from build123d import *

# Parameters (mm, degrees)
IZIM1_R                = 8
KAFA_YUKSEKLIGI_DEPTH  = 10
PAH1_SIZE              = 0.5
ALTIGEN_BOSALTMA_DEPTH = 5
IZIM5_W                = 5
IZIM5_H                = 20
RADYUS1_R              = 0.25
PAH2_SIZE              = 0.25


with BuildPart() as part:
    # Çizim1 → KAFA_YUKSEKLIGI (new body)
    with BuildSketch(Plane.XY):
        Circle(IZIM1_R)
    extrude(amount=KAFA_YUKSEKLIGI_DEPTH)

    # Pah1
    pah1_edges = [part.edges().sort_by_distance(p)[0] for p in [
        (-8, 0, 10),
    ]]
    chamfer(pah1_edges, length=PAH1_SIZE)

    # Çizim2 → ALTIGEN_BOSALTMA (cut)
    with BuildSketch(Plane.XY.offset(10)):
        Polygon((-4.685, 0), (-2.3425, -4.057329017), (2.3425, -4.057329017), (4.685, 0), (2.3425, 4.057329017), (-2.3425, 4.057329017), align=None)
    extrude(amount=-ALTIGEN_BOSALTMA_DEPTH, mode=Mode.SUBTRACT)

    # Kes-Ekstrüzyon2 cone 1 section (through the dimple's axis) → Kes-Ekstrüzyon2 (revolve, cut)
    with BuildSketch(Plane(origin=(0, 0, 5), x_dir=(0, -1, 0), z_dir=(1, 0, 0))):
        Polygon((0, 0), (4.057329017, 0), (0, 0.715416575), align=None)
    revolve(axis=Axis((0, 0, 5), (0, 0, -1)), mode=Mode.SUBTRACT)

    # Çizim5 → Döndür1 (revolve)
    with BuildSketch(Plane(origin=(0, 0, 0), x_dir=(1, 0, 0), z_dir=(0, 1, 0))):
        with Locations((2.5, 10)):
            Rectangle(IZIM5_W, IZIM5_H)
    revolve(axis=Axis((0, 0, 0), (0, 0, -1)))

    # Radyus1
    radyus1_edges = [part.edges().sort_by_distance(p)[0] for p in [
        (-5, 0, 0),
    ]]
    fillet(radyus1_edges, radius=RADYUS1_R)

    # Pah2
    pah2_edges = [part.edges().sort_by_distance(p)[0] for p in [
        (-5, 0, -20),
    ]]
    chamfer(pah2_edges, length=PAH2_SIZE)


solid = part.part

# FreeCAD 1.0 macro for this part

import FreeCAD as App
import Part
import Sketcher

V = App.Vector
Q = App.Units.Quantity


def edges_at(feature, points):
    """Names of the edges that pass closest to the given points."""
    edges = feature.Shape.Edges
    near = lambda p: min(range(len(edges)), key=lambda i: edges[i].distToShape(Part.Vertex(*p))[0])
    return sorted({f"Edge{near(p) + 1}" for p in points})


def add_polygon(sketch, points):
    """Adds a closed chain of lines whose ends are joined by coincident constraints."""
    first, n = sketch.GeometryCount, len(points)
    for a, b in zip(points, points[1:] + points[:1]):
        sketch.addGeometry(Part.LineSegment(App.Vector(*a, 0), App.Vector(*b, 0)), False)
    for i in range(n):
        sketch.addConstraint(Sketcher.Constraint("Coincident", first + i, 2, first + (i + 1) % n, 1))

doc = App.newDocument("Part")
body = doc.addObject("PartDesign::Body", "Body")

# Sketch on XY plane
sketch1 = doc.addObject("Sketcher::SketchObject", "Sketch")
body.addObject(sketch1)
sketch1.AttachmentSupport = (doc.XY_Plane, [""])
sketch1.MapMode = "FlatFace"
sketch1.addGeometry(Part.Circle(V(0, 0, 0), V(0, 0, 1), 8), False)
sketch1.addConstraint([
    Sketcher.Constraint("Coincident", 0, 3, -1, 1),
    Sketcher.Constraint("Diameter", 0, Q("16 mm")),
])
pad1 = doc.addObject("PartDesign::Pad", "Pad")
body.addObject(pad1)
pad1.Profile = sketch1
pad1.Length = 10
doc.recompute()

chamfer = doc.addObject("PartDesign::Chamfer", "Chamfer")
body.addObject(chamfer)
chamfer.Base = (pad1, edges_at(pad1, [(-8, 0, 10)]))
chamfer.Size = 0.5

# Sketch on XY plane
sketch2 = doc.addObject("Sketcher::SketchObject", "Sketch001")
body.addObject(sketch2)
sketch2.AttachmentSupport = (doc.XY_Plane, [""])
sketch2.MapMode = "FlatFace"
sketch2.AttachmentOffset = App.Placement(V(0, 0, 10), App.Rotation())
add_polygon(sketch2, [(-4.7, 0), (-2.3, -4.1), (2.3, -4.1), (4.7, 0), (2.3, 4.1), (-2.3, 4.1)])  # lines 0-5
sketch2.addConstraint([
    Sketcher.Constraint("Horizontal", 1),
    Sketcher.Constraint("Horizontal", 4),
    Sketcher.Constraint("Symmetric", 0, 2, 3, 2, -1, 1),
    Sketcher.Constraint("Symmetric", 2, 2, 5, 2, -1, 1),
    Sketcher.Constraint("PointOnObject", 2, 2, -1),
    Sketcher.Constraint("Parallel", 2, 5),
    Sketcher.Constraint("Vertical", 1, 2, 3, 2),
    Sketcher.Constraint("Angle", 0, Q("-60 deg")),
    Sketcher.Constraint("DistanceX", 1, 1, 1, 2, Q("4.685 mm")),
    Sketcher.Constraint("DistanceX", 5, 2, 2, 2, Q("9.37 mm")),
])
pocket1 = doc.addObject("PartDesign::Pocket", "Pocket")
body.addObject(pocket1)
pocket1.Profile = sketch2
pocket1.Length = 5

# Sketch on YZ plane
sketch3 = doc.addObject("Sketcher::SketchObject", "Sketch002")
body.addObject(sketch3)
sketch3.AttachmentSupport = (doc.YZ_Plane, [""])
sketch3.MapMode = "FlatFace"
add_polygon(sketch3, [(0, 5), (-4.1, 5), (0, 4.3)])  # lines 0-2
sketch3.addConstraint([
    Sketcher.Constraint("Horizontal", 0),
    Sketcher.Constraint("Vertical", 2),
    Sketcher.Constraint("PointOnObject", 1, 2, -2),
    Sketcher.Constraint("Angle", 1, Q("-10 deg")),
    Sketcher.Constraint("DistanceY", -1, 1, 0, 2, Q("5 mm")),
    Sketcher.Constraint("DistanceX", 0, 2, 0, 1, Q("4.057329 mm")),
])
groove = doc.addObject("PartDesign::Groove", "Groove")
body.addObject(groove)
groove.Profile = sketch3
groove.ReferenceAxis = (sketch3, ["V_Axis"])
groove.Angle = 360

# Sketch on XZ plane
sketch4 = doc.addObject("Sketcher::SketchObject", "Sketch003")
body.addObject(sketch4)
sketch4.AttachmentSupport = (doc.XZ_Plane, [""])
sketch4.MapMode = "FlatFace"
add_polygon(sketch4, [(0, -20), (0, 0), (5, 0), (5, -20)])  # lines 0-3
sketch4.addConstraint([
    Sketcher.Constraint("Vertical", 0),
    Sketcher.Constraint("Horizontal", 1),
    Sketcher.Constraint("Vertical", 2),
    Sketcher.Constraint("Horizontal", 3),
    Sketcher.Constraint("Coincident", 0, 2, -1, 1),
    Sketcher.Constraint("DistanceX", 1, 1, 1, 2, Q("5 mm")),
    Sketcher.Constraint("DistanceY", 0, 1, 0, 2, Q("20 mm")),
])
revolution = doc.addObject("PartDesign::Revolution", "Revolution")
body.addObject(revolution)
revolution.Profile = sketch4
revolution.ReferenceAxis = (sketch4, ["V_Axis"])
revolution.Angle = 360
doc.recompute()

fillet = doc.addObject("PartDesign::Fillet", "Fillet")
body.addObject(fillet)
fillet.Base = (revolution, edges_at(revolution, [(-5, 0, 0)]))
fillet.Radius = 0.25
doc.recompute()

chamfer2 = doc.addObject("PartDesign::Chamfer", "Chamfer001")
body.addObject(chamfer2)
chamfer2.Base = (fillet, edges_at(fillet, [(-5, 0, -20)]))
chamfer2.Size = 0.25

doc.recompute()
